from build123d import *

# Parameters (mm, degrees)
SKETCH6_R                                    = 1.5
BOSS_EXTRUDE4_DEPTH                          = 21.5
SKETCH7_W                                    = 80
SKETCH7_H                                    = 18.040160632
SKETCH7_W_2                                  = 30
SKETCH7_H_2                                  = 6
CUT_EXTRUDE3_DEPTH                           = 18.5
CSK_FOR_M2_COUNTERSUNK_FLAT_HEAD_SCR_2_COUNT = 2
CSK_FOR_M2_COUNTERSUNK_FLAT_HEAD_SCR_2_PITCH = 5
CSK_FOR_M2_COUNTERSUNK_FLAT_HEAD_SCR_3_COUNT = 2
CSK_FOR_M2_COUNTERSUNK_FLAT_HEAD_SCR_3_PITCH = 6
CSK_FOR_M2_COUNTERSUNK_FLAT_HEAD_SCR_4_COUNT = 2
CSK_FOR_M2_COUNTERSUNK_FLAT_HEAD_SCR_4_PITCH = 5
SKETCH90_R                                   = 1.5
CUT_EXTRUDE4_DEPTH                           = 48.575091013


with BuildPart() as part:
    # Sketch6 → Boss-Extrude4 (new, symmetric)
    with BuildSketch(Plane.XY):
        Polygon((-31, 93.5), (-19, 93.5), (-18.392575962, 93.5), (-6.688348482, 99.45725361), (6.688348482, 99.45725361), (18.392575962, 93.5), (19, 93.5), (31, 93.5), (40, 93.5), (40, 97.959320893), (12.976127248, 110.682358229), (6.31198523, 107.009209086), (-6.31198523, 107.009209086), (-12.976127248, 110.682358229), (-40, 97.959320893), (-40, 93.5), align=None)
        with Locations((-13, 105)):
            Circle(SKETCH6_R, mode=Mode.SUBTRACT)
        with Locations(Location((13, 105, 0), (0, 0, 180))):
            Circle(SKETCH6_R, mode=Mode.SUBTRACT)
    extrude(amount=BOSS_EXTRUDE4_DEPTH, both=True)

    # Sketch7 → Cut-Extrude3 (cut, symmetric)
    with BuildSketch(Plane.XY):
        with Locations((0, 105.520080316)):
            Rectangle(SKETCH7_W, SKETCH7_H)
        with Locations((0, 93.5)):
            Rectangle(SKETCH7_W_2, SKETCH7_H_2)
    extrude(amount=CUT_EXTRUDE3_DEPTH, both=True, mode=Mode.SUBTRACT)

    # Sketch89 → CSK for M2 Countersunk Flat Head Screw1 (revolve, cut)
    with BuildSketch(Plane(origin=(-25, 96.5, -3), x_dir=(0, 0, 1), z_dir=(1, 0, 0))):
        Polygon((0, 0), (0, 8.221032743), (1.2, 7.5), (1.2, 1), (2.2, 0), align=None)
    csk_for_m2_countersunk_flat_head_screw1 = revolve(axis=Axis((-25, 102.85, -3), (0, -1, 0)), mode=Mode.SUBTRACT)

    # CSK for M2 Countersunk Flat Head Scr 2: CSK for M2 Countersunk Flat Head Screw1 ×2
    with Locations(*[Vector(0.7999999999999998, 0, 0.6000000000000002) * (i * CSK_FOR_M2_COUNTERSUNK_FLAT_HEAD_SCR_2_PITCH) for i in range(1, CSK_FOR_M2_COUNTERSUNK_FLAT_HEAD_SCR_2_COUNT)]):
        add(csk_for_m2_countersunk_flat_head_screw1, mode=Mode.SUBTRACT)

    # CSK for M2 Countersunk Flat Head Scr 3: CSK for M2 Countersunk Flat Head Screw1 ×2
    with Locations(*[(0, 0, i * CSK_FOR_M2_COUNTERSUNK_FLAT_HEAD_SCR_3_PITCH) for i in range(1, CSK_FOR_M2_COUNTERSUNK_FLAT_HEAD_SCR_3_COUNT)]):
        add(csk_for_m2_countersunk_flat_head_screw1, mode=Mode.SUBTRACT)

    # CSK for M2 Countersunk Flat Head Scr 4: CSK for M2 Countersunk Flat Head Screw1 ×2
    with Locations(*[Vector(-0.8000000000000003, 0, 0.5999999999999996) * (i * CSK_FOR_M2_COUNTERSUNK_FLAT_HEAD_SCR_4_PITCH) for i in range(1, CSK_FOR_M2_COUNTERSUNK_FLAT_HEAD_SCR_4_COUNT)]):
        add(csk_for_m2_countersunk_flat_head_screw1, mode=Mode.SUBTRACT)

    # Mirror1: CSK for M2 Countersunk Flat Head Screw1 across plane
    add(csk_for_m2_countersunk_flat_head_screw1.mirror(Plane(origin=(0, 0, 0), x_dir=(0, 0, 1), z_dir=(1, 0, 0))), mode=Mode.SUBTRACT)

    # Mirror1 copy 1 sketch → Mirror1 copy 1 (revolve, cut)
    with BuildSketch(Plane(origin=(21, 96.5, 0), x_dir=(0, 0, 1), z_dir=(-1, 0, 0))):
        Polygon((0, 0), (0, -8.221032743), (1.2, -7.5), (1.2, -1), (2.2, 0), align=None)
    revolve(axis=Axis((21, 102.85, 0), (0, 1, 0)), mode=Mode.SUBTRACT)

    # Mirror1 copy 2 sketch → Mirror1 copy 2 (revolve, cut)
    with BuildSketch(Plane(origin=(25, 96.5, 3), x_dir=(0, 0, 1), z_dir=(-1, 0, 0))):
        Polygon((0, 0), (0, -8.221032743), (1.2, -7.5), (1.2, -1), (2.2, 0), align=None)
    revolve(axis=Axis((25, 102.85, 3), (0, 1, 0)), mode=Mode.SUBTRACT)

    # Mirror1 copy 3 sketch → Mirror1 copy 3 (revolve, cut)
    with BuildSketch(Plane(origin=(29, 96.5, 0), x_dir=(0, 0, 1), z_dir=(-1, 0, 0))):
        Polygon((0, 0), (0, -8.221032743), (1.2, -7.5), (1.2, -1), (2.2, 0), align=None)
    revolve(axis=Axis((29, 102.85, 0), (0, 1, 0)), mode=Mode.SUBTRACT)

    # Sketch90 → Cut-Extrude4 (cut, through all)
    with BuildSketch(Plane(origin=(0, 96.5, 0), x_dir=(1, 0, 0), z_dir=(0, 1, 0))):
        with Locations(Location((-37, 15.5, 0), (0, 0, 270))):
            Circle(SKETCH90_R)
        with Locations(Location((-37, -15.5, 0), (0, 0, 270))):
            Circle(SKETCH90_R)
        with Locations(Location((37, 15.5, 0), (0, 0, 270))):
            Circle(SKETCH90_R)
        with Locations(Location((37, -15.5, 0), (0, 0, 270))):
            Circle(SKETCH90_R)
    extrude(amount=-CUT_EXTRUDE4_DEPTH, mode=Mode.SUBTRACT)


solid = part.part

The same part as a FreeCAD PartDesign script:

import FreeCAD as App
import Part
import Sketcher

V = App.Vector
Q = App.Units.Quantity


def add_polygon(sketch, points):
    """Adds a closed chain of lines whose ends are joined by coincident constraints."""
    first, n = sketch.GeometryCount, len(points)
    for a, b in zip(points, points[1:] + points[:1]):
        sketch.addGeometry(Part.LineSegment(App.Vector(*a, 0), App.Vector(*b, 0)), False)
    for i in range(n):
        sketch.addConstraint(Sketcher.Constraint("Coincident", first + i, 2, first + (i + 1) % n, 1))

doc = App.newDocument("Part")
body = doc.addObject("PartDesign::Body", "Body")

# Sketch on XY plane
sketch1 = body.newObject("Sketcher::SketchObject", "Sketch")
sketch1.AttachmentSupport = (doc.getObject("XY_Plane"), [""])
sketch1.MapMode = "FlatFace"
add_polygon(sketch1, [(-18.392576, 93.5), (-6.688348, 99.457254), (6.688348, 99.457254), (18.392576, 93.5), (40, 93.5), (40, 97.959321), (12.976127, 110.682358), (6.311985, 107.009209), (-6.311985, 107.009209), (-12.976127, 110.682358), (-40, 97.959321), (-40, 93.5)])  # lines 0-11
sketch1.addGeometry(Part.Circle(V(-13, 105, 0), V(0, 0, 1), 1.5), False)  # 12
sketch1.addGeometry(Part.Circle(V(13, 105, 0), V(0, 0, 1), 1.5), False)  # 13
sketch1.addConstraint(Sketcher.Constraint("Horizontal", 1))
sketch1.addConstraint(Sketcher.Constraint("Horizontal", 3))
sketch1.addConstraint(Sketcher.Constraint("Vertical", 4))
sketch1.addConstraint(Sketcher.Constraint("Horizontal", 7))
sketch1.addConstraint(Sketcher.Constraint("Vertical", 10))
sketch1.addConstraint(Sketcher.Constraint("Horizontal", 11))
sketch1.addConstraint(Sketcher.Constraint("Equal", 12, 13))
sketch1.addConstraint(Sketcher.Constraint("Symmetric", 12, 3, 13, 3, -2))
sketch1.addConstraint(Sketcher.Constraint("Symmetric", 5, 2, 8, 2, -2))
sketch1.addConstraint(Sketcher.Constraint("Symmetric", 4, 2, 9, 2, -2))
sketch1.addConstraint(Sketcher.Constraint("Symmetric", 2, 2, 11, 2, -2))
sketch1.addConstraint(Sketcher.Constraint("Equal", 0, 2))
sketch1.addConstraint(Sketcher.Constraint("Equal", 6, 8))
sketch1.addConstraint(Sketcher.Constraint("Diameter", 12, 3.0))
sketch1.addConstraint(Sketcher.Constraint("DistanceX", 12, 3, -1, 1, 13.0))
sketch1.addConstraint(Sketcher.Constraint("DistanceY", -1, 1, 12, 3, 105.0))
sketch1.addConstraint(Sketcher.Constraint("DistanceX", -1, 1, 3, 2, 40.0))
sketch1.addConstraint(Sketcher.Constraint("DistanceY", -1, 1, 2, 2, 93.5))
sketch1.addConstraint(Sketcher.Constraint("DistanceX", 7, 2, 7, 1, 12.62397))
sketch1.addConstraint(Sketcher.Constraint("DistanceY", 4, 1, 4, 2, 4.459321))
sketch1.addConstraint(Sketcher.Constraint("Distance", 0, 13.133081))
sketch1.addConstraint(Sketcher.Constraint("Distance", 6, 7.60939))
sketch1.addConstraint(Sketcher.Constraint("DistanceX", 1, 1, 1, 2, 13.376697))
sketch1.addConstraint(Sketcher.Constraint("DistanceX", 3, 1, 3, 2, 21.607424))
sketch1.addConstraint(Sketcher.Constraint("DistanceY", -1, 1, 5, 2, 110.682358))
sketch1.addConstraint(Sketcher.Constraint("DistanceY", -1, 1, 6, 2, 107.009209))
pad1 = body.newObject("PartDesign::Pad", "Pad")
pad1.Profile = sketch1
pad1.Length = 43
pad1.Midplane = True

# Sketch on XY plane
sketch2 = body.newObject("Sketcher::SketchObject", "Sketch001")
sketch2.AttachmentSupport = (doc.getObject("XY_Plane"), [""])
sketch2.MapMode = "FlatFace"
add_polygon(sketch2, [(-40, 114.540161), (-40, 96.5), (-15, 96.5), (-15, 90.5), (15, 90.5), (15, 96.5), (40, 96.5), (40, 114.540161)])  # lines 0-7
sketch2.addConstraint(Sketcher.Constraint("Vertical", 0))
sketch2.addConstraint(Sketcher.Constraint("Horizontal", 1))
sketch2.addConstraint(Sketcher.Constraint("Vertical", 2))
sketch2.addConstraint(Sketcher.Constraint("Horizontal", 3))
sketch2.addConstraint(Sketcher.Constraint("Vertical", 4))
sketch2.addConstraint(Sketcher.Constraint("Horizontal", 5))
sketch2.addConstraint(Sketcher.Constraint("Vertical", 6))
sketch2.addConstraint(Sketcher.Constraint("Horizontal", 7))
sketch2.addConstraint(Sketcher.Constraint("Symmetric", 1, 2, 4, 2, -2))
sketch2.addConstraint(Sketcher.Constraint("Equal", 1, 5))
sketch2.addConstraint(Sketcher.Constraint("DistanceX", 1, 1, 1, 2, 25.0))
sketch2.addConstraint(Sketcher.Constraint("DistanceX", 3, 1, 3, 2, 30.0))
sketch2.addConstraint(Sketcher.Constraint("DistanceY", 2, 2, 2, 1, 6.0))
sketch2.addConstraint(Sketcher.Constraint("DistanceY", -1, 1, 0, 2, 96.5))
sketch2.addConstraint(Sketcher.Constraint("DistanceY", 0, 2, 0, 1, 18.040161))
pocket1 = body.newObject("PartDesign::Pocket", "Pocket")
pocket1.Profile = sketch2
pocket1.Length = 37
pocket1.Midplane = True

# Sketch on YZ plane
sketch3 = body.newObject("Sketcher::SketchObject", "Sketch002")
sketch3.AttachmentSupport = (doc.getObject("YZ_Plane"), [""])
sketch3.MapMode = "FlatFace"
sketch3.AttachmentOffset = App.Placement(V(0, 0, -25), App.Rotation())
add_polygon(sketch3, [(88.278967, -3), (96.5, -3), (96.5, -0.8), (95.5, -1.8), (89, -1.8)])  # lines 0-4
sketch3.addGeometry(Part.LineSegment(V(96.5, -3, 0), V(88.278967, -3, 0)), True)  # axis
sketch3.addConstraint(Sketcher.Constraint("Horizontal", 0))
sketch3.addConstraint(Sketcher.Constraint("Vertical", 1))
sketch3.addConstraint(Sketcher.Constraint("Horizontal", 3))
sketch3.addConstraint(Sketcher.Constraint("Horizontal", 5))
sketch3.addConstraint(Sketcher.Constraint("Coincident", 5, 1, 0, 2))
sketch3.addConstraint(Sketcher.Constraint("Equal", 0, 5))
sketch3.addConstraint(Sketcher.Constraint("Angle", 2, Q("-135 deg")))
sketch3.addConstraint(Sketcher.Constraint("Angle", 4, Q("-121 deg")))
sketch3.addConstraint(Sketcher.Constraint("DistanceX", 3, 2, 3, 1, 6.5))
sketch3.addConstraint(Sketcher.Constraint("DistanceY", 1, 1, 1, 2, 2.2))
sketch3.addConstraint(Sketcher.Constraint("DistanceY", 0, 2, -1, 1, 3.0))
sketch3.addConstraint(Sketcher.Constraint("DistanceX", -1, 1, 3, 2, 89.0))
sketch3.addConstraint(Sketcher.Constraint("DistanceX", 2, 2, 1, 2, 1.0))
groove = body.newObject("PartDesign::Groove", "Groove")
groove.Profile = sketch3
groove.ReferenceAxis = (sketch3, ["Axis0"])
groove.Angle = 360
doc.recompute()

datumline = body.newObject("PartDesign::Line", "DatumLine")
datumline.Placement = App.Placement(V(0, 0, 0), App.Rotation(V(0, 0, 1), V(0.8, 0, 0.6)))
linearpattern = body.newObject("PartDesign::LinearPattern", "LinearPattern")
linearpattern.Originals = [groove]
linearpattern.Direction = (datumline, [""])
linearpattern.Mode = "offset"
linearpattern.Offset = 5
linearpattern.Occurrences = 2
body.Tip = linearpattern
doc.recompute()

linearpattern2 = body.newObject("PartDesign::LinearPattern", "LinearPattern001")
linearpattern2.Originals = [groove]
linearpattern2.Direction = (doc.getObject("Z_Axis"), [""])
linearpattern2.Mode = "offset"
linearpattern2.Offset = 6
linearpattern2.Occurrences = 2
body.Tip = linearpattern2
doc.recompute()

datumline2 = body.newObject("PartDesign::Line", "DatumLine001")
datumline2.Placement = App.Placement(V(0, 0, 0), App.Rotation(V(0, 0, 1), V(-0.8, 0, 0.6)))
linearpattern3 = body.newObject("PartDesign::LinearPattern", "LinearPattern002")
linearpattern3.Originals = [groove]
linearpattern3.Direction = (datumline2, [""])
linearpattern3.Mode = "offset"
linearpattern3.Offset = 5
linearpattern3.Occurrences = 2
body.Tip = linearpattern3
doc.recompute()

mirrored = body.newObject("PartDesign::Mirrored", "Mirrored")
mirrored.Originals = [groove]
mirrored.MirrorPlane = (doc.getObject("YZ_Plane"), [""])
body.Tip = mirrored

# Sketch on YZ plane
sketch4 = body.newObject("Sketcher::SketchObject", "Sketch003")
sketch4.AttachmentSupport = (doc.getObject("YZ_Plane"), [""])
sketch4.MapMode = "FlatFace"
sketch4.AttachmentOffset = App.Placement(V(0, 0, 21), App.Rotation())
add_polygon(sketch4, [(96.5, 0), (88.278967, 0), (89, 1.2), (95.5, 1.2), (96.5, 2.2)])  # lines 0-4
sketch4.addConstraint(Sketcher.Constraint("Horizontal", 0))
sketch4.addConstraint(Sketcher.Constraint("Horizontal", 2))
sketch4.addConstraint(Sketcher.Constraint("Vertical", 4))
sketch4.addConstraint(Sketcher.Constraint("PointOnObject", 0, 2, -1))
sketch4.addConstraint(Sketcher.Constraint("Angle", 1, Q("59 deg")))
sketch4.addConstraint(Sketcher.Constraint("Angle", 3, Q("45 deg")))
sketch4.addConstraint(Sketcher.Constraint("DistanceX", 2, 1, 2, 2, 6.5))
sketch4.addConstraint(Sketcher.Constraint("DistanceY", 4, 2, 4, 1, 2.2))
sketch4.addConstraint(Sketcher.Constraint("DistanceX", -1, 1, 1, 2, 89.0))
sketch4.addConstraint(Sketcher.Constraint("DistanceX", 2, 2, 3, 2, 1.0))
groove2 = body.newObject("PartDesign::Groove", "Groove001")
groove2.Profile = sketch4
groove2.ReferenceAxis = (sketch4, ["H_Axis"])
groove2.Angle = 360

# Sketch on YZ plane
sketch5 = body.newObject("Sketcher::SketchObject", "Sketch004")
sketch5.AttachmentSupport = (doc.getObject("YZ_Plane"), [""])
sketch5.MapMode = "FlatFace"
sketch5.AttachmentOffset = App.Placement(V(0, 0, 25), App.Rotation())
add_polygon(sketch5, [(96.5, 3), (88.278967, 3), (89, 4.2), (95.5, 4.2), (96.5, 5.2)])  # lines 0-4
sketch5.addGeometry(Part.LineSegment(V(88.278967, 3, 0), V(96.5, 3, 0)), True)  # axis
sketch5.addConstraint(Sketcher.Constraint("Horizontal", 0))
sketch5.addConstraint(Sketcher.Constraint("Horizontal", 2))
sketch5.addConstraint(Sketcher.Constraint("Vertical", 4))
sketch5.addConstraint(Sketcher.Constraint("Horizontal", 5))
sketch5.addConstraint(Sketcher.Constraint("Coincident", 5, 1, 0, 2))
sketch5.addConstraint(Sketcher.Constraint("Vertical", 3, 2, 5, 2))
sketch5.addConstraint(Sketcher.Constraint("Angle", 1, Q("59 deg")))
sketch5.addConstraint(Sketcher.Constraint("Angle", 3, Q("45 deg")))
sketch5.addConstraint(Sketcher.Constraint("DistanceX", 2, 1, 2, 2, 6.5))
sketch5.addConstraint(Sketcher.Constraint("DistanceY", 4, 2, 4, 1, 2.2))
sketch5.addConstraint(Sketcher.Constraint("DistanceY", -1, 1, 0, 2, 3.0))
sketch5.addConstraint(Sketcher.Constraint("DistanceX", -1, 1, 1, 2, 89.0))
sketch5.addConstraint(Sketcher.Constraint("DistanceX", 2, 2, 3, 2, 1.0))
groove3 = body.newObject("PartDesign::Groove", "Groove002")
groove3.Profile = sketch5
groove3.ReferenceAxis = (sketch5, ["Axis0"])
groove3.Angle = 360

# Sketch on YZ plane
sketch6 = body.newObject("Sketcher::SketchObject", "Sketch005")
sketch6.AttachmentSupport = (doc.getObject("YZ_Plane"), [""])
sketch6.MapMode = "FlatFace"
sketch6.AttachmentOffset = App.Placement(V(0, 0, 29), App.Rotation())
add_polygon(sketch6, [(96.5, 0), (88.278967, 0), (89, 1.2), (95.5, 1.2), (96.5, 2.2)])  # lines 0-4
sketch6.addConstraint(Sketcher.Constraint("Horizontal", 0))
sketch6.addConstraint(Sketcher.Constraint("Horizontal", 2))
sketch6.addConstraint(Sketcher.Constraint("Vertical", 4))
sketch6.addConstraint(Sketcher.Constraint("PointOnObject", 0, 2, -1))
sketch6.addConstraint(Sketcher.Constraint("Angle", 1, Q("59 deg")))
sketch6.addConstraint(Sketcher.Constraint("Angle", 3, Q("45 deg")))
sketch6.addConstraint(Sketcher.Constraint("DistanceX", 2, 1, 2, 2, 6.5))
sketch6.addConstraint(Sketcher.Constraint("DistanceY", 4, 2, 4, 1, 2.2))
sketch6.addConstraint(Sketcher.Constraint("DistanceX", -1, 1, 1, 2, 89.0))
sketch6.addConstraint(Sketcher.Constraint("DistanceX", 2, 2, 3, 2, 1.0))
groove4 = body.newObject("PartDesign::Groove", "Groove003")
groove4.Profile = sketch6
groove4.ReferenceAxis = (sketch6, ["H_Axis"])
groove4.Angle = 360

# Sketch on XZ plane
sketch7 = body.newObject("Sketcher::SketchObject", "Sketch006")
sketch7.AttachmentSupport = (doc.getObject("XZ_Plane"), [""])
sketch7.MapMode = "FlatFace"
sketch7.AttachmentOffset = App.Placement(V(0, 0, -96.5), App.Rotation())
sketch7.addGeometry(Part.Circle(V(-37, -15.5, 0), V(0, 0, 1), 1.5), False)
sketch7.addGeometry(Part.Circle(V(-37, 15.5, 0), V(0, 0, 1), 1.5), False)
sketch7.addGeometry(Part.Circle(V(37, -15.5, 0), V(0, 0, 1), 1.5), False)
sketch7.addGeometry(Part.Circle(V(37, 15.5, 0), V(0, 0, 1), 1.5), False)
sketch7.addConstraint(Sketcher.Constraint("Equal", 0, 1))
sketch7.addConstraint(Sketcher.Constraint("Equal", 1, 2))
sketch7.addConstraint(Sketcher.Constraint("Equal", 2, 3))
sketch7.addConstraint(Sketcher.Constraint("Symmetric", 1, 3, 2, 3, -1, 1))
sketch7.addConstraint(Sketcher.Constraint("Symmetric", 0, 3, 3, 3, -1, 1))
sketch7.addConstraint(Sketcher.Constraint("Symmetric", 0, 3, 2, 3, -2))
sketch7.addConstraint(Sketcher.Constraint("Diameter", 0, 3.0))
sketch7.addConstraint(Sketcher.Constraint("DistanceX", 0, 3, -1, 1, 37.0))
sketch7.addConstraint(Sketcher.Constraint("DistanceY", 0, 3, 1, 3, 31.0))
pocket2 = body.newObject("PartDesign::Pocket", "Pocket001")
pocket2.Profile = sketch7
pocket2.Type = "ThroughAll"
pocket2.Reversed = True

doc.recompute()
